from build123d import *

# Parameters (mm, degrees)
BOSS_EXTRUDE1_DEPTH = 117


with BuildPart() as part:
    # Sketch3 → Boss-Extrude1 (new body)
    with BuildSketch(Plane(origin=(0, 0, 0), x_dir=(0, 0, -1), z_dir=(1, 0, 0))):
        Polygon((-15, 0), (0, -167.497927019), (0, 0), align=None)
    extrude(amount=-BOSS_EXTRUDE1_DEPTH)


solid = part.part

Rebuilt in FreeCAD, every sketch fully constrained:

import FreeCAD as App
import Part
import Sketcher

V = App.Vector
Q = App.Units.Quantity

doc = App.newDocument("Part")
body = doc.addObject("PartDesign::Body", "Body")

sketch1 = body.newObject("Sketcher::SketchObject", "Sketch")
sketch1.AttachmentSupport = (doc.getObject("YZ_Plane"), [""])
sketch1.MapMode = "FlatFace"
sketch1.addGeometry([
    Part.LineSegment(V(0, 15, 0), V(-167.497927, 0, 0)),
    Part.LineSegment(V(-167.497927, 0, 0), V(0, 0, 0)),
    Part.LineSegment(V(0, 0, 0), V(0, 15, 0)),
], False)
sketch1.addConstraint([
    Sketcher.Constraint("Coincident", 0, 2, 1, 1),
    Sketcher.Constraint("Coincident", 1, 2, 2, 1),
    Sketcher.Constraint("Coincident", 2, 2, 0, 1),
    Sketcher.Constraint("Horizontal", 1),
    Sketcher.Constraint("Vertical", 2),
    Sketcher.Constraint("Coincident", 1, 2, -1, 1),
    Sketcher.Constraint("DistanceY", 2, 1, 2, 2, Q("15 mm")),
    Sketcher.Constraint("DistanceX", 1, 1, 1, 2, Q("167.497927 mm")),
])
pad1 = body.newObject("PartDesign::Pad", "Pad")
pad1.Profile = sketch1
pad1.Length = 117
pad1.Reversed = True

doc.recompute()
